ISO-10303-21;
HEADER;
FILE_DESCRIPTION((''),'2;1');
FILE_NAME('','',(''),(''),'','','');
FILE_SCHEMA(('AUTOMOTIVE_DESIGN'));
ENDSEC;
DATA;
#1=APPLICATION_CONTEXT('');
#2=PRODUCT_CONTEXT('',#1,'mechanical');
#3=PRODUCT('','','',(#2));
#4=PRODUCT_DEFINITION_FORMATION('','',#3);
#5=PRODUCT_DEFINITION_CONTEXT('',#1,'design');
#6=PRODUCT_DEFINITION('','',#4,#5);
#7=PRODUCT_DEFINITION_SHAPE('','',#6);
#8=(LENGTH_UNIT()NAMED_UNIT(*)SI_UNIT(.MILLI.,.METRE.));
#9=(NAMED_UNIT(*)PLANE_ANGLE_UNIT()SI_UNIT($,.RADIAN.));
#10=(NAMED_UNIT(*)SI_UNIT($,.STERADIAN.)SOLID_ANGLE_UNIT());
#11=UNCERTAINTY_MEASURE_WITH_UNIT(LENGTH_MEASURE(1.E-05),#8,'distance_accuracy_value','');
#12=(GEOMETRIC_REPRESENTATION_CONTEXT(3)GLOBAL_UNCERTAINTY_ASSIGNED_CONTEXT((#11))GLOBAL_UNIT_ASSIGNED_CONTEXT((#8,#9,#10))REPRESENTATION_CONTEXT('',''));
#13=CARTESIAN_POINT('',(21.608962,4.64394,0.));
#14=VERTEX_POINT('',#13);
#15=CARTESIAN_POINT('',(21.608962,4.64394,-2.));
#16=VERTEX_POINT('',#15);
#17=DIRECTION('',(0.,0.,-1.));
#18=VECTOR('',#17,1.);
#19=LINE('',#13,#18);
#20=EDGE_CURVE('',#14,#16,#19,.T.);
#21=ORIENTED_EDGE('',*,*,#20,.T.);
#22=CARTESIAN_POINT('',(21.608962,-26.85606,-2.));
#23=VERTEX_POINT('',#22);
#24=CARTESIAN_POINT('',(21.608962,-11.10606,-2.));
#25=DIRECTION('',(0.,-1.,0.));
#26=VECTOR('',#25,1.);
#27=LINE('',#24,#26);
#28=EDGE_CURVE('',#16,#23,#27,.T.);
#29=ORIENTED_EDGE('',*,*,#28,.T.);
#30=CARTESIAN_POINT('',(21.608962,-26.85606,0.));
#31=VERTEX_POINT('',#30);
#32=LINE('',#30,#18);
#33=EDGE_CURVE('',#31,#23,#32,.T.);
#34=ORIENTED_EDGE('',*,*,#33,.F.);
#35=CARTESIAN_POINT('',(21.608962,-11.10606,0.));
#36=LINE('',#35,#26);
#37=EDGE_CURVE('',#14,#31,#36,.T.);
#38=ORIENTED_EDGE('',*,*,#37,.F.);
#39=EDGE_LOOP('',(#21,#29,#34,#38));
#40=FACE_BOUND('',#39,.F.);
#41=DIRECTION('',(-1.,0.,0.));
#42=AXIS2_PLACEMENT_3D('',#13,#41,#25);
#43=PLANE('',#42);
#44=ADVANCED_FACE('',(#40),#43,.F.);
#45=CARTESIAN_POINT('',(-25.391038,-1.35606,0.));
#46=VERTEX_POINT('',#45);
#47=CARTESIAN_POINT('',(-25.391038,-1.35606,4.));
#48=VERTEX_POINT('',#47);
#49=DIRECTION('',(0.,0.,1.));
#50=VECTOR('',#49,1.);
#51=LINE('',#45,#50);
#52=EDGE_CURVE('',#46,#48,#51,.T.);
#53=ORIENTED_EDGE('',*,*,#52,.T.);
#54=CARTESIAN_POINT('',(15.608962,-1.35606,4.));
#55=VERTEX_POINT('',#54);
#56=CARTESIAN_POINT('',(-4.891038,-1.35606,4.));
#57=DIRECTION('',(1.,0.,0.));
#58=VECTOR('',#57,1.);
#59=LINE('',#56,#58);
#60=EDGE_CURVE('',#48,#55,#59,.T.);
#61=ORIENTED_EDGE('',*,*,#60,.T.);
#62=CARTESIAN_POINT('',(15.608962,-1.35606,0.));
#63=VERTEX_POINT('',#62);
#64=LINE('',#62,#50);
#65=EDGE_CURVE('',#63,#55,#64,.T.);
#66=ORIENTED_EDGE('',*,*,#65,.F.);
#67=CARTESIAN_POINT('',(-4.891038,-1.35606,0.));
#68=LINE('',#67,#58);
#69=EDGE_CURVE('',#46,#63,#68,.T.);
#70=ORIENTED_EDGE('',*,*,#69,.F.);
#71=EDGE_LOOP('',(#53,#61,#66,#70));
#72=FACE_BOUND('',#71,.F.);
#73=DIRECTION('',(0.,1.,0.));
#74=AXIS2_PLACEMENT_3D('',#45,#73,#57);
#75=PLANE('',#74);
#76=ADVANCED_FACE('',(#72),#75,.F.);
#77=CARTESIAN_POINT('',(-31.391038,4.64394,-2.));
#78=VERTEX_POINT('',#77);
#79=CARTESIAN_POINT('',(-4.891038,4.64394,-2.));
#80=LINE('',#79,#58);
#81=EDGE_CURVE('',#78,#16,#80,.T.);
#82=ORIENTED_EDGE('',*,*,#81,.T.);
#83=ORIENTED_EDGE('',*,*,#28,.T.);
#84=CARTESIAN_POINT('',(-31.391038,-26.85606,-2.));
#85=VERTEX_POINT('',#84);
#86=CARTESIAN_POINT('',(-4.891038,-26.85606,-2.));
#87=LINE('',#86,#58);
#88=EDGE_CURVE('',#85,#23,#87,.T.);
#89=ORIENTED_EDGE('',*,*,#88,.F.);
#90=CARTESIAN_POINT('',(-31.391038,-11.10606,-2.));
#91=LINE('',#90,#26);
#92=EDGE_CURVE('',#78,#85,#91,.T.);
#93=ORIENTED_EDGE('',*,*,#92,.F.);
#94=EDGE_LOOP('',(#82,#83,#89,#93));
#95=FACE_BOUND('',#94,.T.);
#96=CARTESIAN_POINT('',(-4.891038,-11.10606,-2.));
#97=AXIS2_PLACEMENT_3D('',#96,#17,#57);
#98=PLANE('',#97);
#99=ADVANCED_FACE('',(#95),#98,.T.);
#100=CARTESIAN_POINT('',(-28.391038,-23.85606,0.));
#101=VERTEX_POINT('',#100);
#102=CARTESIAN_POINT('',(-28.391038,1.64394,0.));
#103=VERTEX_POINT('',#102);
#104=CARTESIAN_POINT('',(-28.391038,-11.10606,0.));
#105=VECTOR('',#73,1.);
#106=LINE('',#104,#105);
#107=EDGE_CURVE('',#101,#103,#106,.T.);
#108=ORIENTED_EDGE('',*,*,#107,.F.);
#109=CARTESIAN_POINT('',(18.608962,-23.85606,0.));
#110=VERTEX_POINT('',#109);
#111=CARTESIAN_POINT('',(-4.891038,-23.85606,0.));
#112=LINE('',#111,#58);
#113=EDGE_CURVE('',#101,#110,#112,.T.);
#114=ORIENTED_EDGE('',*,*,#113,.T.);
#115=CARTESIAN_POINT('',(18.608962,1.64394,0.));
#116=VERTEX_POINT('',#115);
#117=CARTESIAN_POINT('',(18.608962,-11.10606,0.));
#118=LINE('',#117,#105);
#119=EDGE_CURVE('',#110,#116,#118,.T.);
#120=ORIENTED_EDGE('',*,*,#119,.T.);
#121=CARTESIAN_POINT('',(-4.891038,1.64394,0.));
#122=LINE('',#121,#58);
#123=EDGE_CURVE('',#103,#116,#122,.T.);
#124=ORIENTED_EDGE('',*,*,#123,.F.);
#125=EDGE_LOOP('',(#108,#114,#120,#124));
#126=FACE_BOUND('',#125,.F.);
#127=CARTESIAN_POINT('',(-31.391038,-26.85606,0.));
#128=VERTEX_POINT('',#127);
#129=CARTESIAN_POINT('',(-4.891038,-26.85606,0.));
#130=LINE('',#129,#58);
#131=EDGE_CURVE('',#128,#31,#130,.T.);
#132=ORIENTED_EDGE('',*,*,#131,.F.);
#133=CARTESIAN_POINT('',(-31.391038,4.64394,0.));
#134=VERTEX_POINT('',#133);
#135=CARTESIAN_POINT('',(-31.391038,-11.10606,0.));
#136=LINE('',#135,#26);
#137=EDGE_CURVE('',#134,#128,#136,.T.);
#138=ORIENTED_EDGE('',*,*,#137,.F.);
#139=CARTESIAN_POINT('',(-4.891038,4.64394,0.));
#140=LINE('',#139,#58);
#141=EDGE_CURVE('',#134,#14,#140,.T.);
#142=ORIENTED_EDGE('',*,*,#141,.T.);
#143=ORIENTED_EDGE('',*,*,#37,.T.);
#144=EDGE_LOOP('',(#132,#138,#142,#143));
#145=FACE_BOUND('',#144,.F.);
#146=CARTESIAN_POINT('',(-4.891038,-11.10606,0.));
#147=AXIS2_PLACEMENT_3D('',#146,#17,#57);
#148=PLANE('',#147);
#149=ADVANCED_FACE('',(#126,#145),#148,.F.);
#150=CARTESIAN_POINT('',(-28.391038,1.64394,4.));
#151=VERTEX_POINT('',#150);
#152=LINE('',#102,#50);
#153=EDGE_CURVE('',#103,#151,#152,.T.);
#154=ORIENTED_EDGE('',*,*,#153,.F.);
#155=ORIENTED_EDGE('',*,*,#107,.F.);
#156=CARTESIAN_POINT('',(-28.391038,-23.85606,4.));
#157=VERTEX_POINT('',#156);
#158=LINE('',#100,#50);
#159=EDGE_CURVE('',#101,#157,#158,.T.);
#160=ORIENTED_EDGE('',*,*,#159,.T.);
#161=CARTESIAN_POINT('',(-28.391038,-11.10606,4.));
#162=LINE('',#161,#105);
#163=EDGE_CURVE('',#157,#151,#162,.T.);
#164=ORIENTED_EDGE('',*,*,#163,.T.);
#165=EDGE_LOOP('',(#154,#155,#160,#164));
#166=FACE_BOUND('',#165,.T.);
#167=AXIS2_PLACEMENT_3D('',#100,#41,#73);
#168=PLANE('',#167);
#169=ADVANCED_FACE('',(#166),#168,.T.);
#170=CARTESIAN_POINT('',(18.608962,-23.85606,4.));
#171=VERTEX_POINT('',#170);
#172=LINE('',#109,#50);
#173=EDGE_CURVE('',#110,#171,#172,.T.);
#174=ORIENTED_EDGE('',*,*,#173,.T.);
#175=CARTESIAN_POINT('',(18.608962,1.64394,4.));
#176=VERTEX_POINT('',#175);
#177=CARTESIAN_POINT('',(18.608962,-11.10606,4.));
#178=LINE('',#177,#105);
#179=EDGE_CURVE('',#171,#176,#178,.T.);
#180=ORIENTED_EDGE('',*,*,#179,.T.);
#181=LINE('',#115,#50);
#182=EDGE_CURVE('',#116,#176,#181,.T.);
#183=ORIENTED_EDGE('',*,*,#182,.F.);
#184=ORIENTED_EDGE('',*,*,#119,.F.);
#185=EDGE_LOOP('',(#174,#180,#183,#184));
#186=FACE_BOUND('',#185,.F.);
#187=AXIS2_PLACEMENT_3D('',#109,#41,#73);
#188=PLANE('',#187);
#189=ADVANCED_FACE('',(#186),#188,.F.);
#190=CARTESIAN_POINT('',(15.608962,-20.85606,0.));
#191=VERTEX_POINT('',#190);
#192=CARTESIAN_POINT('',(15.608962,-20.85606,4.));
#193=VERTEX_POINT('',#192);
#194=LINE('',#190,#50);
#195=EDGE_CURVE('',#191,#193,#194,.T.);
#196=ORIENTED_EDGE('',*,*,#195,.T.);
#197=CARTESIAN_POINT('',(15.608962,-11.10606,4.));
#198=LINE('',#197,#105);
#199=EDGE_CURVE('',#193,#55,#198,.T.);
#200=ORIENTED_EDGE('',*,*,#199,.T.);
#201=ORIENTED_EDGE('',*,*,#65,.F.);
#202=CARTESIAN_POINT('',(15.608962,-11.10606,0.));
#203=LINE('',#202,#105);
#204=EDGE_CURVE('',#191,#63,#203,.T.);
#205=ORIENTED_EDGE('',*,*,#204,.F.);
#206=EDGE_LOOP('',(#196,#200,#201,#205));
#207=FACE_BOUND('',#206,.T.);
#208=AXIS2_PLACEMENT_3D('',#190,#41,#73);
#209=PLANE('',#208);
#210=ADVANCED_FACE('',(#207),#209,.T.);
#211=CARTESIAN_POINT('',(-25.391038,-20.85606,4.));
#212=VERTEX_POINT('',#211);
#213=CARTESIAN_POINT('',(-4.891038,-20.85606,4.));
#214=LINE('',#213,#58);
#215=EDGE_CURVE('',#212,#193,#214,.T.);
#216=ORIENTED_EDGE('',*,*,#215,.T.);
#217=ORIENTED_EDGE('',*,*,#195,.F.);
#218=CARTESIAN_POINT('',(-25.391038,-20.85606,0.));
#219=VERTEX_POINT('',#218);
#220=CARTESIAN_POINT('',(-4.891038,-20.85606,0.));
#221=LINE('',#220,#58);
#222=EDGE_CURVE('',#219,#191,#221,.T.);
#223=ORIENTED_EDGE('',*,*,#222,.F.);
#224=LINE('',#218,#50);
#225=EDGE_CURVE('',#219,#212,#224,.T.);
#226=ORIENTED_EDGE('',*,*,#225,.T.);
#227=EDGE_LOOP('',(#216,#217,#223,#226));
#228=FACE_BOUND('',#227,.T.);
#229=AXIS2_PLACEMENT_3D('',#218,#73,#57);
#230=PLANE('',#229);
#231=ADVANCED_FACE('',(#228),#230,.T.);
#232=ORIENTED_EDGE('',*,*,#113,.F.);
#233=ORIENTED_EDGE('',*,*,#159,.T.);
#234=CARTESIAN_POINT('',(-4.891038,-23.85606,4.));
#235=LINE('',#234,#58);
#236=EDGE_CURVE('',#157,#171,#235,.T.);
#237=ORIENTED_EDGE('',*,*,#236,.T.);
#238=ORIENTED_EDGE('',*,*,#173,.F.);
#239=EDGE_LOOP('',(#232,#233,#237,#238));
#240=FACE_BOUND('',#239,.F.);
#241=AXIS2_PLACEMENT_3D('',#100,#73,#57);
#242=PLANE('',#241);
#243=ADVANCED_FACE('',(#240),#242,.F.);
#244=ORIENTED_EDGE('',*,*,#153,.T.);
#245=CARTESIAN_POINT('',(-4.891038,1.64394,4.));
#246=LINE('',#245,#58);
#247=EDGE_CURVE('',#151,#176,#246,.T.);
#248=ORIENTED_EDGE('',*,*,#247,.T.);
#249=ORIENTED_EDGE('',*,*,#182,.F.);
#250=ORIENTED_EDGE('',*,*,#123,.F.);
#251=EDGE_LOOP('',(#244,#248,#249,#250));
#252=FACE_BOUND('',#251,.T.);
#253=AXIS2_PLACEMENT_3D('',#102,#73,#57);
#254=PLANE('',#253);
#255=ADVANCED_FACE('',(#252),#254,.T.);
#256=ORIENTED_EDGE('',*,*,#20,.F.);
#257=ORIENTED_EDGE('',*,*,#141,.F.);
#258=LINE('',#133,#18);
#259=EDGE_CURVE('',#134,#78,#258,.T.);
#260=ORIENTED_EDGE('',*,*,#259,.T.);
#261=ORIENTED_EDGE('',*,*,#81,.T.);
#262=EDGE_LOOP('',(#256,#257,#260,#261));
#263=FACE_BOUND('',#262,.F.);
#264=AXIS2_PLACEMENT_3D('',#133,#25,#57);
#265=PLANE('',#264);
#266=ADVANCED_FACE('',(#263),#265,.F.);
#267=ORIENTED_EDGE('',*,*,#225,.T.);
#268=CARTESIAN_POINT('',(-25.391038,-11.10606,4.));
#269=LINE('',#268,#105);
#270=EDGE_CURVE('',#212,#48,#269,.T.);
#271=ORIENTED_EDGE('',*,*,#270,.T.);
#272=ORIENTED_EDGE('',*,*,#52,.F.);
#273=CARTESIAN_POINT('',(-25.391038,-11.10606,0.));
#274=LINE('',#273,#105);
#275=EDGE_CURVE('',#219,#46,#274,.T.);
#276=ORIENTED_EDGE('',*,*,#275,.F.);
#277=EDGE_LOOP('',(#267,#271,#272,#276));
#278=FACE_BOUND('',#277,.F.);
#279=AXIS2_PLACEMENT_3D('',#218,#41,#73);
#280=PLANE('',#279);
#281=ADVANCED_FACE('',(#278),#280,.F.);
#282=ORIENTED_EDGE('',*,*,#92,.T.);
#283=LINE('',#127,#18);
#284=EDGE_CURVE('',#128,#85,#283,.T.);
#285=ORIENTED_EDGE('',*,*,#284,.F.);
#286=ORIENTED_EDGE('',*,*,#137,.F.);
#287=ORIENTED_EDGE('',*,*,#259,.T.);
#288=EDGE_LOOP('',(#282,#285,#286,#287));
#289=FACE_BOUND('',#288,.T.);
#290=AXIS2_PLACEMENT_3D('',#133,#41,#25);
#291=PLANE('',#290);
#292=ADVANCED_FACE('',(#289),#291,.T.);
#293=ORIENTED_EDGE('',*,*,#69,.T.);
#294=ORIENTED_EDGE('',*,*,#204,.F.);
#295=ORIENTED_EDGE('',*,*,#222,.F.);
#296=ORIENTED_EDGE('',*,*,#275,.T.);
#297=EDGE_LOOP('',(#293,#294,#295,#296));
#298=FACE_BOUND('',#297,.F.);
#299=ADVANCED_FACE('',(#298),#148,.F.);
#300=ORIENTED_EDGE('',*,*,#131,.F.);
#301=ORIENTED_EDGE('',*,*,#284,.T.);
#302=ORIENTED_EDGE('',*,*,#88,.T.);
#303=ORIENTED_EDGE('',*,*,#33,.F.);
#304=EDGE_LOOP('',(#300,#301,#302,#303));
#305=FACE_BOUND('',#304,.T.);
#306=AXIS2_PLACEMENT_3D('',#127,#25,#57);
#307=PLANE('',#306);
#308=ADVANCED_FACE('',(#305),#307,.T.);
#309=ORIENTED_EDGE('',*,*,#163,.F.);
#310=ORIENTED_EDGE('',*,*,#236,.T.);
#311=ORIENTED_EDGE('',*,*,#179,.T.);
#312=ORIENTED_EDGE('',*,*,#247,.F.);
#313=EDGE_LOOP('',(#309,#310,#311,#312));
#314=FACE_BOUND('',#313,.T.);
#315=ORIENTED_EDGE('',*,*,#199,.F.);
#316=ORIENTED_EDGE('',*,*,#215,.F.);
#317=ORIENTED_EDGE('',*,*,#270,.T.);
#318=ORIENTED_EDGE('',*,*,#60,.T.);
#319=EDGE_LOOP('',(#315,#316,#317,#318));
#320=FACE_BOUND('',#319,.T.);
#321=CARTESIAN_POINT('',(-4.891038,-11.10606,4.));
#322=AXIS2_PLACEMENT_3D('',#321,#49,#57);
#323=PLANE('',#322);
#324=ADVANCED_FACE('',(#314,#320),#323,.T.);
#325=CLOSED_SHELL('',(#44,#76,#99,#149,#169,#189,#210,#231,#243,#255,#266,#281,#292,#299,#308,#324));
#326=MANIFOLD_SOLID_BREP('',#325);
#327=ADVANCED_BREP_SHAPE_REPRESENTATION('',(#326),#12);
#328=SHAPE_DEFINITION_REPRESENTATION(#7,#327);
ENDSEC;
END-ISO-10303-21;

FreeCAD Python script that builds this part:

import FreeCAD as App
import Part
import Sketcher


def add_polygon(sketch, points):
    """Adds a closed chain of lines whose ends are joined by coincident constraints."""
    first, n = sketch.GeometryCount, len(points)
    for a, b in zip(points, points[1:] + points[:1]):
        sketch.addGeometry(Part.LineSegment(App.Vector(*a, 0), App.Vector(*b, 0)), False)
    for i in range(n):
        sketch.addConstraint(Sketcher.Constraint("Coincident", first + i, 2, first + (i + 1) % n, 1))

doc = App.newDocument("Part")
params = doc.addObject("Spreadsheet::Sheet", "Params")
for row, (alias, value) in enumerate([
    ("sketch1_width", "47 mm"),
    ("sketch1_width2", "41 mm"),
    ("sketch1_height", "25.5 mm"),
    ("sketch1_height2", "19.5 mm"),
    ("pad1_length", "4 mm"),
    ("sketch2_width", "53 mm"),
    ("sketch2_height", "31.5 mm"),
    ("pad2_length", "2 mm"),
], start=1):
    params.set(f"A{row}", alias)
    params.set(f"B{row}", "=" + value)
    params.setAlias(f"B{row}", alias)

body = doc.addObject("PartDesign::Body", "Body")

sketch1 = body.newObject("Sketcher::SketchObject", "Sketch")
sketch1.AttachmentSupport = (doc.getObject("XY_Plane"), [""])
sketch1.MapMode = "FlatFace"
add_polygon(sketch1, [(-28, 2), (-28, -24), (19, -24), (19, 2)])
add_polygon(sketch1, [(16, -21), (-25, -21), (-25, -1), (16, -1)])
sketch1.addConstraint([
    Sketcher.Constraint("Vertical", 0),
    Sketcher.Constraint("Horizontal", 1),
    Sketcher.Constraint("Vertical", 2),
    Sketcher.Constraint("Horizontal", 3),
    Sketcher.Constraint("Horizontal", 4),
    Sketcher.Constraint("Vertical", 5),
    Sketcher.Constraint("Horizontal", 6),
    Sketcher.Constraint("Vertical", 7),
    Sketcher.Constraint("DistanceX", 1, 1, 1, 2, 47.0),
    Sketcher.Constraint("DistanceX", 4, 2, 4, 1, 41.0),
    Sketcher.Constraint("DistanceY", 0, 2, 0, 1, 25.5),
    Sketcher.Constraint("DistanceY", 5, 1, 5, 2, 19.5),
    Sketcher.Constraint("DistanceX", 0, 2, 4, 2, 3.0),
    Sketcher.Constraint("DistanceY", 0, 2, 4, 2, 3.0),
    Sketcher.Constraint("DistanceX", 0, 2, -1, 1, 28.391038),
    Sketcher.Constraint("DistanceY", 0, 2, -1, 1, 23.85606),
])
sketch1.setExpression("Constraints[16]", "Params.sketch1_width")
sketch1.setExpression("Constraints[17]", "Params.sketch1_width2")
sketch1.setExpression("Constraints[18]", "Params.sketch1_height")
sketch1.setExpression("Constraints[19]", "Params.sketch1_height2")
pad1 = body.newObject("PartDesign::Pad", "Pad")
pad1.Profile = sketch1
pad1.setExpression("Length", "Params.pad1_length")

sketch2 = body.newObject("Sketcher::SketchObject", "Sketch001")
sketch2.AttachmentSupport = (doc.getObject("XY_Plane"), [""])
sketch2.MapMode = "FlatFace"
add_polygon(sketch2, [(-31, -27), (-31, 5), (22, 5), (22, -27)])
sketch2.addConstraint([
    Sketcher.Constraint("Vertical", 0),
    Sketcher.Constraint("Horizontal", 1),
    Sketcher.Constraint("Vertical", 2),
    Sketcher.Constraint("Horizontal", 3),
    Sketcher.Constraint("DistanceX", 1, 1, 1, 2, 53.0),
    Sketcher.Constraint("DistanceY", 0, 1, 0, 2, 31.5),
    Sketcher.Constraint("DistanceX", 0, 2, -1, 1, 31.391038),
    Sketcher.Constraint("DistanceY", -1, 1, 0, 2, 4.64394),
])
sketch2.setExpression("Constraints[8]", "Params.sketch2_width")
sketch2.setExpression("Constraints[9]", "Params.sketch2_height")
pad2 = body.newObject("PartDesign::Pad", "Pad001")
pad2.Profile = sketch2
pad2.setExpression("Length", "Params.pad2_length")
pad2.Reversed = True

doc.recompute()
